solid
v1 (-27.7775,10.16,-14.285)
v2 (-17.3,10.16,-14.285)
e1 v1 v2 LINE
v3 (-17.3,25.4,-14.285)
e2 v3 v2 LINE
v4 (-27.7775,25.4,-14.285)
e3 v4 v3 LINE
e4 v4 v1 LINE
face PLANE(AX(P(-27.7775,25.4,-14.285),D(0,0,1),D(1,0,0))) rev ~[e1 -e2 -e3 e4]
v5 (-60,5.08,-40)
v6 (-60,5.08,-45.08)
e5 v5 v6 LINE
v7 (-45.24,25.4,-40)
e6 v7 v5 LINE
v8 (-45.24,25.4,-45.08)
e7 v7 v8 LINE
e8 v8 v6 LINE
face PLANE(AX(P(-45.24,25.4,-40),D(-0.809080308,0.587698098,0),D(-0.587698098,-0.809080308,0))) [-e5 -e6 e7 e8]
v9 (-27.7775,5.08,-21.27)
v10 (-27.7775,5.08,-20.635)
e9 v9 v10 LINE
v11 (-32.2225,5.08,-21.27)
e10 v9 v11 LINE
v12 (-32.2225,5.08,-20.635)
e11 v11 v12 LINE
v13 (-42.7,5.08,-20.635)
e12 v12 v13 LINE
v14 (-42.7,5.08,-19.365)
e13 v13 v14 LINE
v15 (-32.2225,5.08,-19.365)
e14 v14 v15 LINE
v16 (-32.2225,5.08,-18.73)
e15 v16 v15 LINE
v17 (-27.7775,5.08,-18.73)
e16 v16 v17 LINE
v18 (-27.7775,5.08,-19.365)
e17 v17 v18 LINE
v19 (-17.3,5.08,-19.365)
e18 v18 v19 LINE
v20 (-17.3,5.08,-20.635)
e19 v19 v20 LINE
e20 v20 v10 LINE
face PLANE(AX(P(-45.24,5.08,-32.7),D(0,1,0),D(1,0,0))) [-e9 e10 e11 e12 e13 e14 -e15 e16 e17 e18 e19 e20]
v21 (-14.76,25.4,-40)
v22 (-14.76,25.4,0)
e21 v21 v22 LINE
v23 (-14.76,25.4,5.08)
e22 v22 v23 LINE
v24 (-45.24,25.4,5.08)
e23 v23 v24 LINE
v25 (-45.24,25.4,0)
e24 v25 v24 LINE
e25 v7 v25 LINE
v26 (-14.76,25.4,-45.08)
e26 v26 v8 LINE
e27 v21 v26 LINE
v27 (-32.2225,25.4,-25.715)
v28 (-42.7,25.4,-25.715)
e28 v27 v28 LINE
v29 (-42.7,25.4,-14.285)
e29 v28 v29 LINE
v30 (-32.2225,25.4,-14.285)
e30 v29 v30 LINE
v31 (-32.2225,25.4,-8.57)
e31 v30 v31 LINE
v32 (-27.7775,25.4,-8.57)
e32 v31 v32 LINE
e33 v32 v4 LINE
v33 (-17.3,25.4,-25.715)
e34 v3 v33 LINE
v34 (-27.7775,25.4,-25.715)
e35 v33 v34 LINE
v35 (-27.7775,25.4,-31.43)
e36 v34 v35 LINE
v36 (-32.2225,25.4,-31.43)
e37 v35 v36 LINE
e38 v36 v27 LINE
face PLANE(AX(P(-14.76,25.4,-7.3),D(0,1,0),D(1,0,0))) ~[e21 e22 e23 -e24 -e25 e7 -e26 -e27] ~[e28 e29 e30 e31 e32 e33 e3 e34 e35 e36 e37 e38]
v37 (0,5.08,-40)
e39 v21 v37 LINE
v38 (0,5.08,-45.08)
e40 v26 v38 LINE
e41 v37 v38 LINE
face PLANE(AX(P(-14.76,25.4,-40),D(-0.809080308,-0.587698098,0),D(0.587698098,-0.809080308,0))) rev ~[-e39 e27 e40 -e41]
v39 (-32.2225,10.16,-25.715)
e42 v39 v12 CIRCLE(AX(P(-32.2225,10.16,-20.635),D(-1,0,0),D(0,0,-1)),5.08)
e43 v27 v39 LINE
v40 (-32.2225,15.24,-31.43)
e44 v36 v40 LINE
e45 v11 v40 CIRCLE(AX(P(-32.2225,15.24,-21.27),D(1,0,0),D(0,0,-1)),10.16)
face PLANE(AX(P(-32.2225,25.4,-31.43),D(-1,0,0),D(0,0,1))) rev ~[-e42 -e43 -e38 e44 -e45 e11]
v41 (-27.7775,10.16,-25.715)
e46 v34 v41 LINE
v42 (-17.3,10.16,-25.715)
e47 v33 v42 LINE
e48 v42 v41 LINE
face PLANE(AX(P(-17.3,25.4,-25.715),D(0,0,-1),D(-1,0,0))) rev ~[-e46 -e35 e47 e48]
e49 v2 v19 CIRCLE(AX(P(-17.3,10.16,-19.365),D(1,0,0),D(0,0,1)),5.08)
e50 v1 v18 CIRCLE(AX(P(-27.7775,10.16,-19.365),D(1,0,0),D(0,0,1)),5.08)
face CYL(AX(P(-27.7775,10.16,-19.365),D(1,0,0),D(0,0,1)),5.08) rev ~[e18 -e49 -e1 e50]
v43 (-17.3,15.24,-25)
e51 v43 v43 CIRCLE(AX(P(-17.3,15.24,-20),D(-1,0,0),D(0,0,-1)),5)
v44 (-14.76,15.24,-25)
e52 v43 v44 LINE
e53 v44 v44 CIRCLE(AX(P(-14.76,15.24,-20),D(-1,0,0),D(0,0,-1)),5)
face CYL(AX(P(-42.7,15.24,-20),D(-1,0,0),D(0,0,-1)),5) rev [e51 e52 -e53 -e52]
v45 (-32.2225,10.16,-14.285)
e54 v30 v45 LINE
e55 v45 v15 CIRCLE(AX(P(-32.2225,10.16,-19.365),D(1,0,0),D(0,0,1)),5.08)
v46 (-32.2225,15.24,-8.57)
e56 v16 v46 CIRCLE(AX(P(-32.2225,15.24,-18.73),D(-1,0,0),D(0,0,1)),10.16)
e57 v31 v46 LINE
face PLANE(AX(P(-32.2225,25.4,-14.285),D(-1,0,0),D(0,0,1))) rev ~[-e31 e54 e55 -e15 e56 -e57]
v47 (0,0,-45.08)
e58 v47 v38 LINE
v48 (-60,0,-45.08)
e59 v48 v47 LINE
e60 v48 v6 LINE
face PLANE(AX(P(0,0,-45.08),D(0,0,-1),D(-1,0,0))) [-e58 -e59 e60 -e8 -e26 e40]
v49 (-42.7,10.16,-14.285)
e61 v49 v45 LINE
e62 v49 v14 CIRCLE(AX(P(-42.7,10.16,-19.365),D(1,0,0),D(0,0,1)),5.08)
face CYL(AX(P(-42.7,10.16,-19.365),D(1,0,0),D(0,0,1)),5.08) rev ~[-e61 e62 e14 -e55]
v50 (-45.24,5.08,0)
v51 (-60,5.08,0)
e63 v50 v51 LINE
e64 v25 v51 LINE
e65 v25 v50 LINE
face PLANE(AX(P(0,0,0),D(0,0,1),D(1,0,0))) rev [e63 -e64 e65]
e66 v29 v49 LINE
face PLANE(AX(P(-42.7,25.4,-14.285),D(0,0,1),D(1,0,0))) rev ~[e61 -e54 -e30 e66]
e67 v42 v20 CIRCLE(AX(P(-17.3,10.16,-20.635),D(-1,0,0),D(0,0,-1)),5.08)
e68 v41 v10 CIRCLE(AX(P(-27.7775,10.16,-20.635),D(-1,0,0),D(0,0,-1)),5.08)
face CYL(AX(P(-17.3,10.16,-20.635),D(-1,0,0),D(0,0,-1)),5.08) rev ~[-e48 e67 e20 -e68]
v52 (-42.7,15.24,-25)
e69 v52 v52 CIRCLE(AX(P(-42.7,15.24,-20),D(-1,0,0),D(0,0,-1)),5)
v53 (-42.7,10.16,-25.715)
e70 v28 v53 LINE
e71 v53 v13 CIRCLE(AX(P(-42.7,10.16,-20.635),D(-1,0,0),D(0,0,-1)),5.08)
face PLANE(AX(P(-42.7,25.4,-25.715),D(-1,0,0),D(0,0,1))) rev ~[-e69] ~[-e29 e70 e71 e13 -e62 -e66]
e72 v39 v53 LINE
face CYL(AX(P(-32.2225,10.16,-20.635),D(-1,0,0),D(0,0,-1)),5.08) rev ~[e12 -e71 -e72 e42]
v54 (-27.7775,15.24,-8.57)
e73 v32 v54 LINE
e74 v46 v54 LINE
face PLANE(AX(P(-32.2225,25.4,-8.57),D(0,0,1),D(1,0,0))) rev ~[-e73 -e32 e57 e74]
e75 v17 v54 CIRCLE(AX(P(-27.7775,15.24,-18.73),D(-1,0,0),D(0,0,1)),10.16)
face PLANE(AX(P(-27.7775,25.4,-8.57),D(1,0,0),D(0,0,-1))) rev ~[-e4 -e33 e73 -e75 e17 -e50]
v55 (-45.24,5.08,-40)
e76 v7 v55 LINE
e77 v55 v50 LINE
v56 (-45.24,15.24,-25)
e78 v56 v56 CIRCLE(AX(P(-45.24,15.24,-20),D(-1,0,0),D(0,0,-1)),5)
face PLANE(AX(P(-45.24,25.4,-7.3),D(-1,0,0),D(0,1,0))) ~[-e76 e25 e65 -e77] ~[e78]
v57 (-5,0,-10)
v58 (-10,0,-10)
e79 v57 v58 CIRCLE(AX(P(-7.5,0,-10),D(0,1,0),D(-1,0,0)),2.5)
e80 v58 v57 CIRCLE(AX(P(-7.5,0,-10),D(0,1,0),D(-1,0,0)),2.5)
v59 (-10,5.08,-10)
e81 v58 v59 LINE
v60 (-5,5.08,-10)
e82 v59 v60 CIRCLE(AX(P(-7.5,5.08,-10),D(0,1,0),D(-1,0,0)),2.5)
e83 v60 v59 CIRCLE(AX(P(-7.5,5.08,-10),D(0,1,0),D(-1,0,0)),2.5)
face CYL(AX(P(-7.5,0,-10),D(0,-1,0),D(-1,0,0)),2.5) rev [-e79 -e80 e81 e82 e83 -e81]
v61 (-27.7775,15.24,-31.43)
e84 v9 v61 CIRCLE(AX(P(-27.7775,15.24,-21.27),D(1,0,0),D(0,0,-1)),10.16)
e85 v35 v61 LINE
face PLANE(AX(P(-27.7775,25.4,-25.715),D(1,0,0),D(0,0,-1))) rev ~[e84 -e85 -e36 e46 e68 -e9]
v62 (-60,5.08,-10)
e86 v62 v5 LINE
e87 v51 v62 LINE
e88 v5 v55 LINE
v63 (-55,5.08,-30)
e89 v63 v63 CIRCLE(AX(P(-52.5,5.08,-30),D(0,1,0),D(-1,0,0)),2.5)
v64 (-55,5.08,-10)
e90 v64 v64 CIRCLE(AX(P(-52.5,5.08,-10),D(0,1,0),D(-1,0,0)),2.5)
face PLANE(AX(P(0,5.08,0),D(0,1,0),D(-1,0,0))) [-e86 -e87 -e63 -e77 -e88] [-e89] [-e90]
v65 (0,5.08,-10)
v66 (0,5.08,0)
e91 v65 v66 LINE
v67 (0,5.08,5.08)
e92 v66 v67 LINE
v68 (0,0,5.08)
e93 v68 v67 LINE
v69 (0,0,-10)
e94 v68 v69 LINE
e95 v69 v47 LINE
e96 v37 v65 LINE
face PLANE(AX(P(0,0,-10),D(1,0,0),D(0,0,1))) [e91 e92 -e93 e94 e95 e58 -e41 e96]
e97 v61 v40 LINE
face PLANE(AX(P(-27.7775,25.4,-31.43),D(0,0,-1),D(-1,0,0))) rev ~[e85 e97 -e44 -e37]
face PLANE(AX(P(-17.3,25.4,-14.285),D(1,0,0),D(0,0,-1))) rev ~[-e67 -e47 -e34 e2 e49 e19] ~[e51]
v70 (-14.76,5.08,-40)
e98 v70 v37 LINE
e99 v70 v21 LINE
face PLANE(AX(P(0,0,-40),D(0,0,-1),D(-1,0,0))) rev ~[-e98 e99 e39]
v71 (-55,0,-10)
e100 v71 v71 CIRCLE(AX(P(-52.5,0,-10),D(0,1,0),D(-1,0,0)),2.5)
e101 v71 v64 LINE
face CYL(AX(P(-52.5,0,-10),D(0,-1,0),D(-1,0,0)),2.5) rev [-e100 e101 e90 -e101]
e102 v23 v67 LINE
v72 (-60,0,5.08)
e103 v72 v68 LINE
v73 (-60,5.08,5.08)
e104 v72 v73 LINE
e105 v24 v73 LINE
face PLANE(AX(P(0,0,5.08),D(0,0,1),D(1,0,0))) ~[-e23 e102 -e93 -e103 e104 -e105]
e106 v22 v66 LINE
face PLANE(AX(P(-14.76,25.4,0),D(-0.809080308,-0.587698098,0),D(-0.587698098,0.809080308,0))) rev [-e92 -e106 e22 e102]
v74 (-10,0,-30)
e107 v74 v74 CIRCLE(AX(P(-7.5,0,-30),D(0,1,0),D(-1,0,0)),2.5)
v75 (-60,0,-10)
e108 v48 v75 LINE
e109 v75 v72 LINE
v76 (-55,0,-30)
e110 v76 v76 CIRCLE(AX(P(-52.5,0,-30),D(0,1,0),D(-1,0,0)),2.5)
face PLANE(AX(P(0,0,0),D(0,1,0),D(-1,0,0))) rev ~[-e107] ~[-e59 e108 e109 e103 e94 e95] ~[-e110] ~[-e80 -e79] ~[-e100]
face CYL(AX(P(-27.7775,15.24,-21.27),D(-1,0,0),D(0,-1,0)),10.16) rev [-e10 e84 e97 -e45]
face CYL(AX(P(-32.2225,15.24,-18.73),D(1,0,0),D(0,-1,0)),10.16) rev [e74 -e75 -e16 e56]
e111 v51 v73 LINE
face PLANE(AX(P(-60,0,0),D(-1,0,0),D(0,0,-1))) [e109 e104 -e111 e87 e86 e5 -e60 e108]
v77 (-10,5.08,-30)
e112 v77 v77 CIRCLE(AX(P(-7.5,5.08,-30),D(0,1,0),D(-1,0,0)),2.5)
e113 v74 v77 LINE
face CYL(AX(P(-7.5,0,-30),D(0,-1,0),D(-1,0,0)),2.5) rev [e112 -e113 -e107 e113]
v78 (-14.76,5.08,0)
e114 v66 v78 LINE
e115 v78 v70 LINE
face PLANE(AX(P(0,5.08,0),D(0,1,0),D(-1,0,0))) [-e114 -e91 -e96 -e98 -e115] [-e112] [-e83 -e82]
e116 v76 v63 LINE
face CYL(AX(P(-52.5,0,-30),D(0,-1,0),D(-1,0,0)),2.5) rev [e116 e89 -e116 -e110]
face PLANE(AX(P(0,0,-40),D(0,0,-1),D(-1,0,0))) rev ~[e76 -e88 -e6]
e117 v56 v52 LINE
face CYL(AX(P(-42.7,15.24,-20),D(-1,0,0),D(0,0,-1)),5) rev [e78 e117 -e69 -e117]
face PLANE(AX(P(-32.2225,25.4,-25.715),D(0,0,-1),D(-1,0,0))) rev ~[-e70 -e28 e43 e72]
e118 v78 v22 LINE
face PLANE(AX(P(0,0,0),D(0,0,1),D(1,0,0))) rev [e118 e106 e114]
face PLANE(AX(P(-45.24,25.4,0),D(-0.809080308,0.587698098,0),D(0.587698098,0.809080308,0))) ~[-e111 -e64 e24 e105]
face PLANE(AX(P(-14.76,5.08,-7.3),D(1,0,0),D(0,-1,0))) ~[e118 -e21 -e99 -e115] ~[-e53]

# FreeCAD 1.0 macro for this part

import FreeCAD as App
import Part
import Sketcher
from FreeCAD import Vector
Q = App.Units.Quantity


def edges_at(feature, points):
    """Names of the edges that pass closest to the given points."""
    edges = feature.Shape.Edges
    near = lambda p: min(range(len(edges)), key=lambda i: edges[i].distToShape(Part.Vertex(*p))[0])
    return sorted({f"Edge{near(p) + 1}" for p in points})

doc = App.newDocument("Part")
params = doc.addObject("Spreadsheet::Sheet", "Params")
for row, (alias, value) in enumerate([
    ("pad1_length", "0.2 in"),
    ("sketch2_height", "1 in"),
    ("sketch2_width", "0.8 in"),
    ("pad2_length", "1.2 in"),
    ("sketch3_height", "0.45 in"),
    ("sketch3_width", "0.175 in"),
    ("pocket1_length", "0.8 in"),
    ("fillet_radius", "0.2 in"),
    ("fillet2_radius", "0.4 in"),
    ("pocket2_length", "4.6125 in"),
    ("sketch5_width", "1.2 in"),
    ("sketch5_height", "0.2 in"),
    ("pad3_length", "0.2 in"),
    ("sketch6_width", "1.2 in"),
    ("sketch6_height", "0.8 in"),
    ("pad4_length", "0.2874016 in"),
], start=1):
    params.set(f"A{row}", alias)
    params.set(f"B{row}", "=" + value)
    params.setAlias(f"B{row}", alias)

body = doc.addObject("PartDesign::Body", "Body")

sketch1 = body.newObject("Sketcher::SketchObject", "Sketch")
sketch1.AttachmentSupport = (doc.getObject("XZ_Plane"), [""])
sketch1.MapMode = "FlatFace"
sketch1.addGeometry([
    Part.LineSegment(Vector(-60, 0, 0), Vector(0, 0, 0)),
    Part.LineSegment(Vector(0, 0, 0), Vector(0, -10, 0)),
    Part.LineSegment(Vector(0, -10, 0), Vector(0, -40, 0)),
    Part.LineSegment(Vector(0, -40, 0), Vector(-60, -40, 0)),
    Part.LineSegment(Vector(-60, -40, 0), Vector(-60, -10, 0)),
    Part.LineSegment(Vector(-60, -10, 0), Vector(-60, 0, 0)),
    Part.Circle(Vector(-7.5, -10, 0), Vector(0, 0, 1), 2.5),
    Part.Circle(Vector(-52.5, -10, 0), Vector(0, 0, 1), 2.5),
    Part.Circle(Vector(-52.5, -30, 0), Vector(0, 0, 1), 2.5),
    Part.Circle(Vector(-7.5, -30, 0), Vector(0, 0, 1), 2.5),
], False)
sketch1.addConstraint([
    Sketcher.Constraint("Coincident", 0, 2, 1, 1),
    Sketcher.Constraint("Coincident", 1, 2, 2, 1),
    Sketcher.Constraint("Coincident", 2, 2, 3, 1),
    Sketcher.Constraint("Coincident", 3, 2, 4, 1),
    Sketcher.Constraint("Coincident", 4, 2, 5, 1),
    Sketcher.Constraint("Coincident", 5, 2, 0, 1),
    Sketcher.Constraint("Horizontal", 0),
    Sketcher.Constraint("Vertical", 1),
    Sketcher.Constraint("Vertical", 2),
    Sketcher.Constraint("Horizontal", 3),
    Sketcher.Constraint("Vertical", 4),
    Sketcher.Constraint("Vertical", 5),
    Sketcher.Constraint("Coincident", 0, 2, -1, 1),
    Sketcher.Constraint("Equal", 6, 7),
    Sketcher.Constraint("Equal", 7, 8),
    Sketcher.Constraint("Equal", 8, 9),
    Sketcher.Constraint("Horizontal", 6, 3, 7, 3),
    Sketcher.Constraint("Horizontal", 8, 3, 9, 3),
    Sketcher.Constraint("Horizontal", 7, 3, 1, 2),
    Sketcher.Constraint("Horizontal", 1, 2, 4, 2),
    Sketcher.Constraint("Vertical", 7, 3, 8, 3),
    Sketcher.Constraint("Vertical", 6, 3, 9, 3),
    Sketcher.Constraint("Diameter", 6, 5.0),
    Sketcher.Constraint("DistanceX", 0, 1, 0, 2, Q("2.3622 in")),
    Sketcher.Constraint("DistanceY", 2, 2, -1, 1, Q("1.5748 in")),
    Sketcher.Constraint("DistanceX", 6, 3, -1, 1, 7.5),
    Sketcher.Constraint("DistanceX", 3, 2, 8, 3, 7.5),
    Sketcher.Constraint("DistanceY", 1, 2, 1, 1, Q("0.3937 in")),
    Sketcher.Constraint("DistanceY", 8, 3, -1, 1, Q("1.1811 in")),
])
pad1 = body.newObject("PartDesign::Pad", "Pad")
pad1.Profile = sketch1
pad1.setExpression("Length", "Params.pad1_length")
pad1.Reversed = True

sketch2 = body.newObject("Sketcher::SketchObject", "Sketch001")
sketch2.AttachmentSupport = (doc.getObject("YZ_Plane"), [""])
sketch2.MapMode = "FlatFace"
sketch2.AttachmentOffset = App.Placement(Vector(0, 0, -1.1811024 * 25.4), App.Rotation())
sketch2.addGeometry([
    Part.LineSegment(Vector(25, -7, 0), Vector(25, -33, 0)),
    Part.LineSegment(Vector(25, -33, 0), Vector(5, -33, 0)),
    Part.LineSegment(Vector(5, -33, 0), Vector(5, -7, 0)),
    Part.LineSegment(Vector(5, -7, 0), Vector(25, -7, 0)),
], False)
sketch2.addConstraint([
    Sketcher.Constraint("Coincident", 0, 2, 1, 1),
    Sketcher.Constraint("Coincident", 1, 2, 2, 1),
    Sketcher.Constraint("Coincident", 2, 2, 3, 1),
    Sketcher.Constraint("Coincident", 3, 2, 0, 1),
    Sketcher.Constraint("Vertical", 0),
    Sketcher.Constraint("Horizontal", 1),
    Sketcher.Constraint("Vertical", 2),
    Sketcher.Constraint("Horizontal", 3),
    Sketcher.Constraint("DistanceY", 0, 2, 0, 1, Q("1 in")),
    Sketcher.Constraint("DistanceX", -1, 1, 0, 2, Q("1 in")),
    Sketcher.Constraint("DistanceX", 1, 2, 1, 1, Q("0.8 in")),
    Sketcher.Constraint("DistanceY", 0, 2, -1, 1, Q("1.2874 in")),
])
sketch2.setExpression("Constraints[8]", "Params.sketch2_height")
sketch2.setExpression("Constraints[10]", "Params.sketch2_width")
pad2 = body.newObject("PartDesign::Pad", "Pad001")
pad2.Profile = sketch2
pad2.setExpression("Length", "Params.pad2_length")
pad2.Midplane = True

sketch3 = body.newObject("Sketcher::SketchObject", "Sketch002")
sketch3.AttachmentSupport = (doc.getObject("XZ_Plane"), [""])
sketch3.MapMode = "FlatFace"
sketch3.AttachmentOffset = App.Placement(Vector(0, 0, -1 * 25.4), App.Rotation())
sketch3.addGeometry([
    Part.LineSegment(Vector(-27.8, -25.7, 0), Vector(-27.8, -31.4, 0)),
    Part.LineSegment(Vector(-27.8, -31.4, 0), Vector(-32.2, -31.4, 0)),
    Part.LineSegment(Vector(-32.2, -31.4, 0), Vector(-32.2, -25.7, 0)),
    Part.LineSegment(Vector(-32.2, -25.7, 0), Vector(-42.7, -25.7, 0)),
    Part.LineSegment(Vector(-42.7, -25.7, 0), Vector(-42.7, -14.3, 0)),
    Part.LineSegment(Vector(-42.7, -14.3, 0), Vector(-32.2, -14.3, 0)),
    Part.LineSegment(Vector(-32.2, -14.3, 0), Vector(-32.2, -8.6, 0)),
    Part.LineSegment(Vector(-32.2, -8.6, 0), Vector(-27.8, -8.6, 0)),
    Part.LineSegment(Vector(-27.8, -8.6, 0), Vector(-27.8, -14.3, 0)),
    Part.LineSegment(Vector(-27.8, -14.3, 0), Vector(-17.3, -14.3, 0)),
    Part.LineSegment(Vector(-17.3, -14.3, 0), Vector(-17.3, -25.7, 0)),
    Part.LineSegment(Vector(-17.3, -25.7, 0), Vector(-27.8, -25.7, 0)),
], False)
sketch3.addConstraint([
    Sketcher.Constraint("Coincident", 0, 2, 1, 1),
    Sketcher.Constraint("Coincident", 1, 2, 2, 1),
    Sketcher.Constraint("Coincident", 2, 2, 3, 1),
    Sketcher.Constraint("Coincident", 3, 2, 4, 1),
    Sketcher.Constraint("Coincident", 4, 2, 5, 1),
    Sketcher.Constraint("Coincident", 5, 2, 6, 1),
    Sketcher.Constraint("Coincident", 6, 2, 7, 1),
    Sketcher.Constraint("Coincident", 7, 2, 8, 1),
    Sketcher.Constraint("Coincident", 8, 2, 9, 1),
    Sketcher.Constraint("Coincident", 9, 2, 10, 1),
    Sketcher.Constraint("Coincident", 10, 2, 11, 1),
    Sketcher.Constraint("Coincident", 11, 2, 0, 1),
    Sketcher.Constraint("Vertical", 0),
    Sketcher.Constraint("Horizontal", 1),
    Sketcher.Constraint("Vertical", 2),
    Sketcher.Constraint("Horizontal", 3),
    Sketcher.Constraint("Vertical", 4),
    Sketcher.Constraint("Horizontal", 5),
    Sketcher.Constraint("Vertical", 6),
    Sketcher.Constraint("Horizontal", 7),
    Sketcher.Constraint("Vertical", 8),
    Sketcher.Constraint("Horizontal", 9),
    Sketcher.Constraint("Vertical", 10),
    Sketcher.Constraint("Horizontal", 11),
    Sketcher.Constraint("Horizontal", 5, 2, 8, 2),
    Sketcher.Constraint("Horizontal", 3, 2, 10, 2),
    Sketcher.Constraint("Vertical", 2, 2, 5, 2),
    Sketcher.Constraint("Vertical", 0, 2, 7, 2),
    Sketcher.Constraint("Equal", 5, 9),
    Sketcher.Constraint("Equal", 2, 6),
    Sketcher.Constraint("DistanceY", 4, 1, 4, 2, Q("0.45 in")),
    Sketcher.Constraint("DistanceY", 1, 2, 6, 2, Q("0.9 in")),
    Sketcher.Constraint("DistanceX", 1, 2, 1, 1, Q("0.175 in")),
    Sketcher.Constraint("DistanceX", 3, 2, 3, 1, Q("0.4125 in")),
    Sketcher.Constraint("DistanceX", 0, 2, -1, 1, Q("1.0936 in")),
    Sketcher.Constraint("DistanceY", 0, 2, -1, 1, Q("1.2374 in")),
])
sketch3.setExpression("Constraints[30]", "Params.sketch3_height")
sketch3.setExpression("Constraints[32]", "Params.sketch3_width")
pocket1 = body.newObject("PartDesign::Pocket", "Pocket")
pocket1.Profile = sketch3
pocket1.setExpression("Length", "Params.pocket1_length")
pocket1.Reversed = True
doc.recompute()

fillet = body.newObject("PartDesign::Fillet", "Fillet")
fillet.Base = (pocket1, edges_at(pocket1, [
    (-37.461, 5.08, -25.715),
    (-37.461, 5.08, -14.285),
    (-22.539, 5.08, -14.285),
    (-22.539, 5.08, -25.715),
]))
fillet.setExpression("Radius", "Params.fillet_radius")
doc.recompute()

fillet2 = body.newObject("PartDesign::Fillet", "Fillet001")
fillet2.Base = (fillet, edges_at(fillet, [(-30, 5.08, -31.43), (-30, 5.08, -8.57)]))
fillet2.setExpression("Radius", "Params.fillet2_radius")

sketch4 = body.newObject("Sketcher::SketchObject", "Sketch003")
sketch4.AttachmentSupport = (doc.getObject("YZ_Plane"), [""])
sketch4.MapMode = "FlatFace"
sketch4.AttachmentOffset = App.Placement(Vector(0, 0, -1.6811024 * 25.4), App.Rotation())
sketch4.addGeometry(Part.Circle(Vector(15, -20, 0), Vector(0, 0, 1), 5), False)
sketch4.addConstraint([
    Sketcher.Constraint("Diameter", 0, Q("0.3937 in")),
    Sketcher.Constraint("DistanceX", -1, 1, 0, 3, Q("0.6 in")),
    Sketcher.Constraint("DistanceY", 0, 3, -1, 1, Q("0.7874 in")),
])
pocket2 = body.newObject("PartDesign::Pocket", "Pocket001")
pocket2.Profile = sketch4
pocket2.setExpression("Length", "Params.pocket2_length")
pocket2.Midplane = True

sketch5 = body.newObject("Sketcher::SketchObject", "Sketch004")
sketch5.AttachmentSupport = (doc.getObject("XY_Plane"), [""])
sketch5.MapMode = "FlatFace"
sketch5.AttachmentOffset = App.Placement(Vector(0, 0, -1.5748031 * 25.4), App.Rotation())
sketch5.addGeometry([
    Part.LineSegment(Vector(0, 0, 0), Vector(-60, 0, 0)),
    Part.LineSegment(Vector(-60, 0, 0), Vector(-60, 5, 0)),
    Part.LineSegment(Vector(-60, 5, 0), Vector(-45, 25, 0)),
    Part.LineSegment(Vector(-45, 25, 0), Vector(-15, 25, 0)),
    Part.LineSegment(Vector(-15, 25, 0), Vector(0, 5, 0)),
    Part.LineSegment(Vector(0, 5, 0), Vector(0, 0, 0)),
], False)
sketch5.addConstraint([
    Sketcher.Constraint("Coincident", 0, 2, 1, 1),
    Sketcher.Constraint("Coincident", 1, 2, 2, 1),
    Sketcher.Constraint("Coincident", 2, 2, 3, 1),
    Sketcher.Constraint("Coincident", 3, 2, 4, 1),
    Sketcher.Constraint("Coincident", 4, 2, 5, 1),
    Sketcher.Constraint("Coincident", 5, 2, 0, 1),
    Sketcher.Constraint("Horizontal", 0),
    Sketcher.Constraint("Vertical", 1),
    Sketcher.Constraint("Horizontal", 3),
    Sketcher.Constraint("Vertical", 5),
    Sketcher.Constraint("Coincident", 5, 2, -1, 1),
    Sketcher.Constraint("Horizontal", 1, 2, 4, 2),
    Sketcher.Constraint("Equal", 2, 4),
    Sketcher.Constraint("DistanceX", 3, 1, 3, 2, Q("1.2 in")),
    Sketcher.Constraint("DistanceY", 1, 1, 1, 2, Q("0.2 in")),
    Sketcher.Constraint("DistanceY", -1, 1, 2, 2, Q("1 in")),
    Sketcher.Constraint("DistanceX", 0, 2, 0, 1, Q("2.3622 in")),
])
sketch5.setExpression("Constraints[13]", "Params.sketch5_width")
sketch5.setExpression("Constraints[14]", "Params.sketch5_height")
pad3 = body.newObject("PartDesign::Pad", "Pad002")
pad3.Profile = sketch5
pad3.setExpression("Length", "Params.pad3_length")
pad3.Reversed = True

sketch6 = body.newObject("Sketcher::SketchObject", "Sketch005")
sketch6.AttachmentSupport = (doc.getObject("XY_Plane"), [""])
sketch6.MapMode = "FlatFace"
sketch6.AttachmentOffset = App.Placement(Vector(0, 0, -1.2874016 * 25.4), App.Rotation())
sketch6.addGeometry([
    Part.LineSegment(Vector(-15, 5, 0), Vector(-45, 5, 0)),
    Part.LineSegment(Vector(-45, 5, 0), Vector(-45, 25, 0)),
    Part.LineSegment(Vector(-45, 25, 0), Vector(-15, 25, 0)),
    Part.LineSegment(Vector(-15, 25, 0), Vector(-15, 5, 0)),
], False)
sketch6.addConstraint([
    Sketcher.Constraint("Coincident", 0, 2, 1, 1),
    Sketcher.Constraint("Coincident", 1, 2, 2, 1),
    Sketcher.Constraint("Coincident", 2, 2, 3, 1),
    Sketcher.Constraint("Coincident", 3, 2, 0, 1),
    Sketcher.Constraint("Horizontal", 0),
    Sketcher.Constraint("Vertical", 1),
    Sketcher.Constraint("Horizontal", 2),
    Sketcher.Constraint("Vertical", 3),
    Sketcher.Constraint("DistanceX", 0, 2, 0, 1, Q("1.2 in")),
    Sketcher.Constraint("DistanceY", 1, 1, 1, 2, Q("0.8 in")),
    Sketcher.Constraint("DistanceY", -1, 1, 1, 2, Q("1 in")),
    Sketcher.Constraint("DistanceX", 0, 2, -1, 1, Q("1.7811 in")),
])
sketch6.setExpression("Constraints[8]", "Params.sketch6_width")
sketch6.setExpression("Constraints[9]", "Params.sketch6_height")
pad4 = body.newObject("PartDesign::Pad", "Pad003")
pad4.Profile = sketch6
pad4.setExpression("Length", "Params.pad4_length")
pad4.Reversed = True
doc.recompute()

datumplane = body.newObject("PartDesign::Plane", "DatumPlane")
datumplane.AttachmentSupport = (doc.getObject("XY_Plane"), [""])
datumplane.MapMode = "FlatFace"
datumplane.AttachmentOffset = App.Placement(Vector(0, 0, -0.7874016 * 25.4), App.Rotation())
mirrored = body.newObject("PartDesign::Mirrored", "Mirrored")
mirrored.Originals = [pad3, pad4]
mirrored.MirrorPlane = (datumplane, [""])
body.Tip = mirrored

doc.recompute()
